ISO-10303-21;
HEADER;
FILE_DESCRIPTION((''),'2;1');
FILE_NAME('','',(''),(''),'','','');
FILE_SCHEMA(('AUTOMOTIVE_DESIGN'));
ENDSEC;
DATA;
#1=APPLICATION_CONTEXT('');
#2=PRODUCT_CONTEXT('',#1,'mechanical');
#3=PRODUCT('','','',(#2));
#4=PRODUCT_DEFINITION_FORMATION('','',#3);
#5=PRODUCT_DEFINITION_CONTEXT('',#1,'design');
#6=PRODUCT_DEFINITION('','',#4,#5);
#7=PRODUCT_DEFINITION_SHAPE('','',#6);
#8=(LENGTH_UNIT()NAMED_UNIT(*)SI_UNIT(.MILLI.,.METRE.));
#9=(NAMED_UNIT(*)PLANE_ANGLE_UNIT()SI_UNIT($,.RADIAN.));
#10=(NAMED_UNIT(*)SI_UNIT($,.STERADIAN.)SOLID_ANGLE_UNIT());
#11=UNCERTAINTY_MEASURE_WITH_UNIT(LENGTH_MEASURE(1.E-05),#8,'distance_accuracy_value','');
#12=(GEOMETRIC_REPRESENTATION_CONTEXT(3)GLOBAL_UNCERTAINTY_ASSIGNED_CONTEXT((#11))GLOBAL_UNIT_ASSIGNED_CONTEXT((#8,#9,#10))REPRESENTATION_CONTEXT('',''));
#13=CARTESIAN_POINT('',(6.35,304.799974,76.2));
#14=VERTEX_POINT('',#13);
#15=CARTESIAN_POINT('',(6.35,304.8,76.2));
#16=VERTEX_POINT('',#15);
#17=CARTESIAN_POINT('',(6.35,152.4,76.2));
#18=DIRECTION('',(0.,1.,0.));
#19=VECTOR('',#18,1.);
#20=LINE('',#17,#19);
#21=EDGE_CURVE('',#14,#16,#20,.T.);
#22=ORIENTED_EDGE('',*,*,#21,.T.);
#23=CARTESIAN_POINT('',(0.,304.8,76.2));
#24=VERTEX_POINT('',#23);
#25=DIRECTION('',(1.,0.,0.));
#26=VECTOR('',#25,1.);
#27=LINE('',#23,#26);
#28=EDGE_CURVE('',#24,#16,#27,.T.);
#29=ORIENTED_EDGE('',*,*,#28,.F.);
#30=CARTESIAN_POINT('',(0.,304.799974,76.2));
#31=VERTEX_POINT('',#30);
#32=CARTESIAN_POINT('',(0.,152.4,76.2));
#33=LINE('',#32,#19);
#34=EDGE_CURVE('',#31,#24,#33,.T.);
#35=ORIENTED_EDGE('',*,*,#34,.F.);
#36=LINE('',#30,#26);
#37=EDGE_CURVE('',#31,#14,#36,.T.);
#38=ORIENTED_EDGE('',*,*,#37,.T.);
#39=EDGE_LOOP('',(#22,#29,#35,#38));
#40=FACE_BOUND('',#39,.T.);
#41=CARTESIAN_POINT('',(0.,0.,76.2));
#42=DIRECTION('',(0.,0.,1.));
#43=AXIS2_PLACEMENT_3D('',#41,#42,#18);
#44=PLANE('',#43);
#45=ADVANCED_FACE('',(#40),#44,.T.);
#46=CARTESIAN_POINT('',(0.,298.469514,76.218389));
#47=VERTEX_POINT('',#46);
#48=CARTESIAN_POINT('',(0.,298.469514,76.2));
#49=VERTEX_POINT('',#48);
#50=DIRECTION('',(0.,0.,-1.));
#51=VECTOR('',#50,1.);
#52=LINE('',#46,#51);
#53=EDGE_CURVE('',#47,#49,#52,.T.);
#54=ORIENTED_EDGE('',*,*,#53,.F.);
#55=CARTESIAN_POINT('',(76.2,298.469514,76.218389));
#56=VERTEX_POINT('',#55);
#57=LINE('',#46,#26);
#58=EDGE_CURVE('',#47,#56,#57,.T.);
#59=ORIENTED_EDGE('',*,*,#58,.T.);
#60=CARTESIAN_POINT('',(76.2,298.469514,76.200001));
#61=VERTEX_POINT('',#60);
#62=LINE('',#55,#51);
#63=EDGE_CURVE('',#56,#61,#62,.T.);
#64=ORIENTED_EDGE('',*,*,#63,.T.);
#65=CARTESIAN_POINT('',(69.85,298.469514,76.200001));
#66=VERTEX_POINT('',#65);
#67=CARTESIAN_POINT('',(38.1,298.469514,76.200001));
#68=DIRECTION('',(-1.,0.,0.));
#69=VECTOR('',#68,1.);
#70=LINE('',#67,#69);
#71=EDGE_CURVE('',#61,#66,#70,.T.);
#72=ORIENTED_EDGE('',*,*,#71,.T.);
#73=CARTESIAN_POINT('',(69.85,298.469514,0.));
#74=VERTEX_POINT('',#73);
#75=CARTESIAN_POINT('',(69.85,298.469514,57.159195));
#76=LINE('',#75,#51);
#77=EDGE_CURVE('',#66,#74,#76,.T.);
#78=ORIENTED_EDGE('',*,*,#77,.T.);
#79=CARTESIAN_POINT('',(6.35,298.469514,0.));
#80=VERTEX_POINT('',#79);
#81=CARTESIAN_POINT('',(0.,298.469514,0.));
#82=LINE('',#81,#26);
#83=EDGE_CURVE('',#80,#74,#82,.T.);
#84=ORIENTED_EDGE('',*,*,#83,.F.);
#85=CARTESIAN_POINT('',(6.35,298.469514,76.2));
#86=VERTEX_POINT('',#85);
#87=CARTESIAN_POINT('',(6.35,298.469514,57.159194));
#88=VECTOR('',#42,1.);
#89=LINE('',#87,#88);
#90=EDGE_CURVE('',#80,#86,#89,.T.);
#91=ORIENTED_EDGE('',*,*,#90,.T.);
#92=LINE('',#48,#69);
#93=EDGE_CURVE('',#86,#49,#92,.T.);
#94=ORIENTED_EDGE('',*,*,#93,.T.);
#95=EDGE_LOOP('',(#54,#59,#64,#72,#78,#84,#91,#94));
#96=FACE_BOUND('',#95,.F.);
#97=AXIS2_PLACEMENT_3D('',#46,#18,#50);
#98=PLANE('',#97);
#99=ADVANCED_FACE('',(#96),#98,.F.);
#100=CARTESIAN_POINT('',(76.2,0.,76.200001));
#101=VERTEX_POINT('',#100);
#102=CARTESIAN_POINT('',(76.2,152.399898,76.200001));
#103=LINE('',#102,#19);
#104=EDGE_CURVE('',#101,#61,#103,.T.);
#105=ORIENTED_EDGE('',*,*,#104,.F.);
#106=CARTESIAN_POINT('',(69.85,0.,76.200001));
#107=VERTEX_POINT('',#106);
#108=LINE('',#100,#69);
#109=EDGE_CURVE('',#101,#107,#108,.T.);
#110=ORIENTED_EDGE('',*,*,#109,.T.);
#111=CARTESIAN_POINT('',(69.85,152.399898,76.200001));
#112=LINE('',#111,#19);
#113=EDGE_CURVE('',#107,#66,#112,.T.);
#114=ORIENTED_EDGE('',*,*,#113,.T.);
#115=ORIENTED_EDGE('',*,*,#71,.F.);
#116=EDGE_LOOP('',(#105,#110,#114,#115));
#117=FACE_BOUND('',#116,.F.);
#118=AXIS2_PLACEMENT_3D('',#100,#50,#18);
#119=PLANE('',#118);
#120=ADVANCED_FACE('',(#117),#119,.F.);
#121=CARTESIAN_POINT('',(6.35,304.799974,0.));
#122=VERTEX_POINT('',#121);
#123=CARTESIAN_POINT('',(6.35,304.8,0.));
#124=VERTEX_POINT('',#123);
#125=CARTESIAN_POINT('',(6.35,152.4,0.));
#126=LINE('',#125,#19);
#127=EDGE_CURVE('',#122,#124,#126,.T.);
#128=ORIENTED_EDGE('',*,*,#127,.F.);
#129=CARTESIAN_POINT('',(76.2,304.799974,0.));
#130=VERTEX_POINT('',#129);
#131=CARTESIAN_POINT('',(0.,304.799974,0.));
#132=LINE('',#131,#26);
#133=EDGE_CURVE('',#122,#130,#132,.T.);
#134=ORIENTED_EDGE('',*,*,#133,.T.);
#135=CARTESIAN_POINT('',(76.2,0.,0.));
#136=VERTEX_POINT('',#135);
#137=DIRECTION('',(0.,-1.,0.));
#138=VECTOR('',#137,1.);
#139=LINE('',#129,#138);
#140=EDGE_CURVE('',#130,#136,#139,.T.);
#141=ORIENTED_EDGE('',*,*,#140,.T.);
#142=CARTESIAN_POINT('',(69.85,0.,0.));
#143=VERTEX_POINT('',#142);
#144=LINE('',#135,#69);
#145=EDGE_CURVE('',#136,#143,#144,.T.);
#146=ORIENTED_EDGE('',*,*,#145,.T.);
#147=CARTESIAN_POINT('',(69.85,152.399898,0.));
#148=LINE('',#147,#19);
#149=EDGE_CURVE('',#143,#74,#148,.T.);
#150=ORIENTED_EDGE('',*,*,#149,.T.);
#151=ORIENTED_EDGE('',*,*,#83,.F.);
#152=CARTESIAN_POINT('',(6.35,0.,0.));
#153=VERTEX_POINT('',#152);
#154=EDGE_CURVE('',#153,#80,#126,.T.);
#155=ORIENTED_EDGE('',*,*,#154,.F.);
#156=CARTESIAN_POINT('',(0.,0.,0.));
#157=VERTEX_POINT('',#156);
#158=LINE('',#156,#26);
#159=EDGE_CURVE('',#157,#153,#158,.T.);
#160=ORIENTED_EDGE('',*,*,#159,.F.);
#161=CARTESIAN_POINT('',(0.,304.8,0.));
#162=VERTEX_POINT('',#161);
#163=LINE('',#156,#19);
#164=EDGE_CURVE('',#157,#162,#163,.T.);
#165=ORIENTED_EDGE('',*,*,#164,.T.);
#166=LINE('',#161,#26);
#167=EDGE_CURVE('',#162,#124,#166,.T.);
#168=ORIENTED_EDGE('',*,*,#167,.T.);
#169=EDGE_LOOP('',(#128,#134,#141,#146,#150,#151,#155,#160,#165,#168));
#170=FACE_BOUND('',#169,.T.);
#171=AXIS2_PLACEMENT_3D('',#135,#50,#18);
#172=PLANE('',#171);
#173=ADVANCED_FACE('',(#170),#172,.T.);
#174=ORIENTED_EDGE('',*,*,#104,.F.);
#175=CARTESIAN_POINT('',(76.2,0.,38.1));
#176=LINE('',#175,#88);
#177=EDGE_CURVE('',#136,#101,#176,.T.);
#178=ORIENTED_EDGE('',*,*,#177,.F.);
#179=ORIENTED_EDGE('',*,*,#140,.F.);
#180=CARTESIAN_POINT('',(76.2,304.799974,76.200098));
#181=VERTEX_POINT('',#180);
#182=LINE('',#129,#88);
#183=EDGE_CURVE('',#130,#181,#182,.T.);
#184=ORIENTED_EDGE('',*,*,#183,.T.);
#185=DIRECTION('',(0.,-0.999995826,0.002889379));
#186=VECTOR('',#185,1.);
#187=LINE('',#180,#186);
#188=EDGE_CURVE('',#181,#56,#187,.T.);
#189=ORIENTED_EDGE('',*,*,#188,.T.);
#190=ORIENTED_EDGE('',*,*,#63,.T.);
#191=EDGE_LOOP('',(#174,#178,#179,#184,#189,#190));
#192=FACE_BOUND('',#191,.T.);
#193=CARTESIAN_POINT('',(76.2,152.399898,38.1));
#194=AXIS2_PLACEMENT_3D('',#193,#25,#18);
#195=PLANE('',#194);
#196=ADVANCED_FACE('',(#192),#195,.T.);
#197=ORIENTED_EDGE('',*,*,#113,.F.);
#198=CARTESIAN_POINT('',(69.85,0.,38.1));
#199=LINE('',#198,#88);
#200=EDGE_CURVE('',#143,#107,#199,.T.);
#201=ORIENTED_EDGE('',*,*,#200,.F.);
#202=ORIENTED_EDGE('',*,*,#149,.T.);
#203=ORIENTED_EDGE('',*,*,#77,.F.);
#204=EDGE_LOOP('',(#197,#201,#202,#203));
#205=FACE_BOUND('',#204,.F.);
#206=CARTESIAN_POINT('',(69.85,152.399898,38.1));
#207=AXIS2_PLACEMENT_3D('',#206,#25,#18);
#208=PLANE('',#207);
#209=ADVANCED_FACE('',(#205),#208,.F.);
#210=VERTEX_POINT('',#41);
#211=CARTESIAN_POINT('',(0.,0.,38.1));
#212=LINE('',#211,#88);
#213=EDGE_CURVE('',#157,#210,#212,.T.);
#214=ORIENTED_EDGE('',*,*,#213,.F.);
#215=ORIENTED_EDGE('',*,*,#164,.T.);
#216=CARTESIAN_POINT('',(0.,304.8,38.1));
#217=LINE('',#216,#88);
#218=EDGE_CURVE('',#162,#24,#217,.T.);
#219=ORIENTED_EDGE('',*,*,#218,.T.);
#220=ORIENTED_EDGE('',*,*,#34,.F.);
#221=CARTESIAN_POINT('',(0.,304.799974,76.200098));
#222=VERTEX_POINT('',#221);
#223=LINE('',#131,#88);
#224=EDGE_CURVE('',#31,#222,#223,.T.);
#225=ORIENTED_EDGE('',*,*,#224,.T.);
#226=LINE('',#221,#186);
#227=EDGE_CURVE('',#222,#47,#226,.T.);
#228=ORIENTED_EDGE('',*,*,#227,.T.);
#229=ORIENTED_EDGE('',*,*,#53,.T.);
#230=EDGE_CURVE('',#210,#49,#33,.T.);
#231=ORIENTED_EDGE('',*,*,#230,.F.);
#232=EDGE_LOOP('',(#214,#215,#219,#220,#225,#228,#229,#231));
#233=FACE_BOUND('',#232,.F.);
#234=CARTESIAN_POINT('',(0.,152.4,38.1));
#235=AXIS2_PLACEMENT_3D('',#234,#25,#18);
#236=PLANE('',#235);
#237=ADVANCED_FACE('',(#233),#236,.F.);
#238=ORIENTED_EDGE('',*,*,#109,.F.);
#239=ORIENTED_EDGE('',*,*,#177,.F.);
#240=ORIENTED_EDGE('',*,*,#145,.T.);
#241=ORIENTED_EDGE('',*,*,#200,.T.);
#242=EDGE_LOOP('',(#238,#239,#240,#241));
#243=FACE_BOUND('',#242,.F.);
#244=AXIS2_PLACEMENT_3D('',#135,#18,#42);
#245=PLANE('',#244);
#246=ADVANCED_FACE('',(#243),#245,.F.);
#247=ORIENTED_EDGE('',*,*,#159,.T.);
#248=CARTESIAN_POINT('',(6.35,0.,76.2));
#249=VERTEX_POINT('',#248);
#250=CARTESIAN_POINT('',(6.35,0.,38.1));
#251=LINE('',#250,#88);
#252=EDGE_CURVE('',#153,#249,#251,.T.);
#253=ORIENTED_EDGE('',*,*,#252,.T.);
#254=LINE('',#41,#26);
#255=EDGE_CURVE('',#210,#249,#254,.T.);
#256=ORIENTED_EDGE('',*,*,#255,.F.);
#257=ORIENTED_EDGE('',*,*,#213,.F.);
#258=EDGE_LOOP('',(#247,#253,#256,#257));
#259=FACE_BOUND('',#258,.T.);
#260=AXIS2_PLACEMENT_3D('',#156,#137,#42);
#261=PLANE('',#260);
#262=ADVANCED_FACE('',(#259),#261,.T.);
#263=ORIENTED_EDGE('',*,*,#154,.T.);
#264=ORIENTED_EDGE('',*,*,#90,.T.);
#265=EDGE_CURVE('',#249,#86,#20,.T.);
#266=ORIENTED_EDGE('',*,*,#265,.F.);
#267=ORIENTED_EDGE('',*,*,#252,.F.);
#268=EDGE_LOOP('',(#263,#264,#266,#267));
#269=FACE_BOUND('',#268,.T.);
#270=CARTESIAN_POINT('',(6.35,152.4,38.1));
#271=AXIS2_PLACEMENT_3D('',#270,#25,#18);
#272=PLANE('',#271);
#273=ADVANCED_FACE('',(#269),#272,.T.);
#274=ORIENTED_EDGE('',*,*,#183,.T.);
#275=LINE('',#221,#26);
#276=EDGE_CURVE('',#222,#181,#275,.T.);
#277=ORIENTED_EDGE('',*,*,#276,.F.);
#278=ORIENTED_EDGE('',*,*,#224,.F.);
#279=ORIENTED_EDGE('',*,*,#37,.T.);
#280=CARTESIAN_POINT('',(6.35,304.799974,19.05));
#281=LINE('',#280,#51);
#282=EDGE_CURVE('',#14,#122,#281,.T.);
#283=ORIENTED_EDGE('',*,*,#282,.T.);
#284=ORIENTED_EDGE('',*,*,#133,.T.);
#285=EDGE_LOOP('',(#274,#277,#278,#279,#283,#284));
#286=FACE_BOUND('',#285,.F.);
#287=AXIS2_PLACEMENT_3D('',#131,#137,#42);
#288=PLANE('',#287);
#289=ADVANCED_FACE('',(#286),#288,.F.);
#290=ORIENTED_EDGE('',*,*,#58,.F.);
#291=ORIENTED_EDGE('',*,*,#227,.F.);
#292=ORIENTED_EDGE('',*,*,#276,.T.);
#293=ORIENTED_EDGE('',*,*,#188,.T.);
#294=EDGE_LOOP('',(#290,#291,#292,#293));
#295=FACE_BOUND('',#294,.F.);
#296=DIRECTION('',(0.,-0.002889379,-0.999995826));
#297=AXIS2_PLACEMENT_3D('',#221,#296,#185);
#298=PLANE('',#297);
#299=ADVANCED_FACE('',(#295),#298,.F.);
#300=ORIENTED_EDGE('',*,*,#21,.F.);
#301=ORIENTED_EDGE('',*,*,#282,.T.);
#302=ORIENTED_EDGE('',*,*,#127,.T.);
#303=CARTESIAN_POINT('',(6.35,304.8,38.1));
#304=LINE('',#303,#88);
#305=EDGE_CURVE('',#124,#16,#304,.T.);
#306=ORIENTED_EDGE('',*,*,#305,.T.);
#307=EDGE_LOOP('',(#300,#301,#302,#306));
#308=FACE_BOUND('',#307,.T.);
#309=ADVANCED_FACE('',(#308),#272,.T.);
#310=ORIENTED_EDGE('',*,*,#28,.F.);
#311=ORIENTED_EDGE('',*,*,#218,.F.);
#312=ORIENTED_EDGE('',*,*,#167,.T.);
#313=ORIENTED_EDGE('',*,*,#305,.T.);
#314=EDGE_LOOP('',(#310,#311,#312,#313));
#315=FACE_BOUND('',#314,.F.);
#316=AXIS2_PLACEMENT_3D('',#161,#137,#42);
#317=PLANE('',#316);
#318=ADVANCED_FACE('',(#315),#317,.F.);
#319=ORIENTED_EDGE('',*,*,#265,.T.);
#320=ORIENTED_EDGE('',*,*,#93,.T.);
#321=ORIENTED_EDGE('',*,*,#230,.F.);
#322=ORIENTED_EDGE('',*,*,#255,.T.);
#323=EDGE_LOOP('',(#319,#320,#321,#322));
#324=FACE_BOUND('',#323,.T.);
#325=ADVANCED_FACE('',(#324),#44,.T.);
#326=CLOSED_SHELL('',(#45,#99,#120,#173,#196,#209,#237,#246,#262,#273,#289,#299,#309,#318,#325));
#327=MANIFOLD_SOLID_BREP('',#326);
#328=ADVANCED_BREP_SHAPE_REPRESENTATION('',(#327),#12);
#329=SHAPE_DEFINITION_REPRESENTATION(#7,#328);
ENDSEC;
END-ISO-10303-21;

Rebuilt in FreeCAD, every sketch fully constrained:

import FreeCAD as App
import Part
import Sketcher
from FreeCAD import Vector
Q = App.Units.Quantity

doc = App.newDocument("Part")
body = doc.addObject("PartDesign::Body", "Body")

sketch1 = doc.addObject("Sketcher::SketchObject", "Sketch")
body.addObject(sketch1)
sketch1.AttachmentSupport = (doc.YZ_Plane, [""])
sketch1.MapMode = "FlatFace"
sketch1.addGeometry([
    Part.LineSegment(Vector(0, 76, 0), Vector(0, 0, 0)),
    Part.LineSegment(Vector(0, 0, 0), Vector(305, 0, 0)),
    Part.LineSegment(Vector(305, 0, 0), Vector(305, 76, 0)),
    Part.LineSegment(Vector(305, 76, 0), Vector(0, 76, 0)),
], False)
sketch1.addConstraint([
    Sketcher.Constraint("Coincident", 0, 2, 1, 1),
    Sketcher.Constraint("Coincident", 1, 2, 2, 1),
    Sketcher.Constraint("Coincident", 2, 2, 3, 1),
    Sketcher.Constraint("Coincident", 3, 2, 0, 1),
    Sketcher.Constraint("Vertical", 0),
    Sketcher.Constraint("Horizontal", 1),
    Sketcher.Constraint("Vertical", 2),
    Sketcher.Constraint("Horizontal", 3),
    Sketcher.Constraint("Coincident", 0, 2, -1, 1),
    Sketcher.Constraint("DistanceX", 1, 1, 1, 2, Q("12 in")),
    Sketcher.Constraint("DistanceY", 0, 2, 0, 1, Q("3 in")),
])
pad1 = doc.addObject("PartDesign::Pad", "Pad")
body.addObject(pad1)
pad1.Profile = sketch1
pad1.Length = Q("0.25 in")

sketch2 = doc.addObject("Sketcher::SketchObject", "Sketch001")
body.addObject(sketch2)
sketch2.AttachmentSupport = (doc.YZ_Plane, [""])
sketch2.MapMode = "FlatFace"
sketch2.addGeometry([
    Part.LineSegment(Vector(305, 0, 0), Vector(305, 76, 0)),
    Part.LineSegment(Vector(305, 76, 0), Vector(298, 76, 0)),
    Part.LineSegment(Vector(298, 76, 0), Vector(298, 0, 0)),
    Part.LineSegment(Vector(298, 0, 0), Vector(305, 0, 0)),
], False)
sketch2.addConstraint([
    Sketcher.Constraint("Coincident", 0, 2, 1, 1),
    Sketcher.Constraint("Coincident", 1, 2, 2, 1),
    Sketcher.Constraint("Coincident", 2, 2, 3, 1),
    Sketcher.Constraint("Coincident", 3, 2, 0, 1),
    Sketcher.Constraint("Vertical", 0),
    Sketcher.Constraint("Vertical", 2),
    Sketcher.Constraint("Horizontal", 3),
    Sketcher.Constraint("PointOnObject", 2, 2, -1),
    Sketcher.Constraint("DistanceX", 3, 1, 3, 2, Q("6.33046 mm")),
    Sketcher.Constraint("DistanceY", 2, 2, 2, 1, Q("76.218389 mm")),
    Sketcher.Constraint("DistanceY", 0, 1, 0, 2, Q("76.200098 mm")),
    Sketcher.Constraint("DistanceX", -1, 1, 0, 2, Q("304.799974 mm")),
])
pad2 = doc.addObject("PartDesign::Pad", "Pad001")
body.addObject(pad2)
pad2.Profile = sketch2
pad2.Length = Q("3 in")

sketch3 = doc.addObject("Sketcher::SketchObject", "Sketch002")
body.addObject(sketch3)
sketch3.AttachmentSupport = (doc.YZ_Plane, [""])
sketch3.MapMode = "FlatFace"
sketch3.AttachmentOffset = App.Placement(Vector(0, 0, 3 * 25.4), App.Rotation())
sketch3.addGeometry([
    Part.LineSegment(Vector(0, 76, 0), Vector(0, 0, 0)),
    Part.LineSegment(Vector(0, 0, 0), Vector(305, 0, 0)),
    Part.LineSegment(Vector(305, 0, 0), Vector(305, 76, 0)),
    Part.LineSegment(Vector(305, 76, 0), Vector(0, 76, 0)),
], False)
sketch3.addConstraint([
    Sketcher.Constraint("Coincident", 0, 2, 1, 1),
    Sketcher.Constraint("Coincident", 1, 2, 2, 1),
    Sketcher.Constraint("Coincident", 2, 2, 3, 1),
    Sketcher.Constraint("Coincident", 3, 2, 0, 1),
    Sketcher.Constraint("Vertical", 0),
    Sketcher.Constraint("Horizontal", 1),
    Sketcher.Constraint("Vertical", 2),
    Sketcher.Constraint("Horizontal", 3),
    Sketcher.Constraint("Coincident", 0, 2, -1, 1),
    Sketcher.Constraint("DistanceY", 0, 2, 0, 1, Q("3 in")),
    Sketcher.Constraint("DistanceX", 1, 1, 1, 2, Q("304.799795 mm")),
])
pad3 = doc.addObject("PartDesign::Pad", "Pad002")
body.addObject(pad3)
pad3.Profile = sketch3
pad3.Length = Q("0.25 in")
pad3.Reversed = True

doc.recompute()
